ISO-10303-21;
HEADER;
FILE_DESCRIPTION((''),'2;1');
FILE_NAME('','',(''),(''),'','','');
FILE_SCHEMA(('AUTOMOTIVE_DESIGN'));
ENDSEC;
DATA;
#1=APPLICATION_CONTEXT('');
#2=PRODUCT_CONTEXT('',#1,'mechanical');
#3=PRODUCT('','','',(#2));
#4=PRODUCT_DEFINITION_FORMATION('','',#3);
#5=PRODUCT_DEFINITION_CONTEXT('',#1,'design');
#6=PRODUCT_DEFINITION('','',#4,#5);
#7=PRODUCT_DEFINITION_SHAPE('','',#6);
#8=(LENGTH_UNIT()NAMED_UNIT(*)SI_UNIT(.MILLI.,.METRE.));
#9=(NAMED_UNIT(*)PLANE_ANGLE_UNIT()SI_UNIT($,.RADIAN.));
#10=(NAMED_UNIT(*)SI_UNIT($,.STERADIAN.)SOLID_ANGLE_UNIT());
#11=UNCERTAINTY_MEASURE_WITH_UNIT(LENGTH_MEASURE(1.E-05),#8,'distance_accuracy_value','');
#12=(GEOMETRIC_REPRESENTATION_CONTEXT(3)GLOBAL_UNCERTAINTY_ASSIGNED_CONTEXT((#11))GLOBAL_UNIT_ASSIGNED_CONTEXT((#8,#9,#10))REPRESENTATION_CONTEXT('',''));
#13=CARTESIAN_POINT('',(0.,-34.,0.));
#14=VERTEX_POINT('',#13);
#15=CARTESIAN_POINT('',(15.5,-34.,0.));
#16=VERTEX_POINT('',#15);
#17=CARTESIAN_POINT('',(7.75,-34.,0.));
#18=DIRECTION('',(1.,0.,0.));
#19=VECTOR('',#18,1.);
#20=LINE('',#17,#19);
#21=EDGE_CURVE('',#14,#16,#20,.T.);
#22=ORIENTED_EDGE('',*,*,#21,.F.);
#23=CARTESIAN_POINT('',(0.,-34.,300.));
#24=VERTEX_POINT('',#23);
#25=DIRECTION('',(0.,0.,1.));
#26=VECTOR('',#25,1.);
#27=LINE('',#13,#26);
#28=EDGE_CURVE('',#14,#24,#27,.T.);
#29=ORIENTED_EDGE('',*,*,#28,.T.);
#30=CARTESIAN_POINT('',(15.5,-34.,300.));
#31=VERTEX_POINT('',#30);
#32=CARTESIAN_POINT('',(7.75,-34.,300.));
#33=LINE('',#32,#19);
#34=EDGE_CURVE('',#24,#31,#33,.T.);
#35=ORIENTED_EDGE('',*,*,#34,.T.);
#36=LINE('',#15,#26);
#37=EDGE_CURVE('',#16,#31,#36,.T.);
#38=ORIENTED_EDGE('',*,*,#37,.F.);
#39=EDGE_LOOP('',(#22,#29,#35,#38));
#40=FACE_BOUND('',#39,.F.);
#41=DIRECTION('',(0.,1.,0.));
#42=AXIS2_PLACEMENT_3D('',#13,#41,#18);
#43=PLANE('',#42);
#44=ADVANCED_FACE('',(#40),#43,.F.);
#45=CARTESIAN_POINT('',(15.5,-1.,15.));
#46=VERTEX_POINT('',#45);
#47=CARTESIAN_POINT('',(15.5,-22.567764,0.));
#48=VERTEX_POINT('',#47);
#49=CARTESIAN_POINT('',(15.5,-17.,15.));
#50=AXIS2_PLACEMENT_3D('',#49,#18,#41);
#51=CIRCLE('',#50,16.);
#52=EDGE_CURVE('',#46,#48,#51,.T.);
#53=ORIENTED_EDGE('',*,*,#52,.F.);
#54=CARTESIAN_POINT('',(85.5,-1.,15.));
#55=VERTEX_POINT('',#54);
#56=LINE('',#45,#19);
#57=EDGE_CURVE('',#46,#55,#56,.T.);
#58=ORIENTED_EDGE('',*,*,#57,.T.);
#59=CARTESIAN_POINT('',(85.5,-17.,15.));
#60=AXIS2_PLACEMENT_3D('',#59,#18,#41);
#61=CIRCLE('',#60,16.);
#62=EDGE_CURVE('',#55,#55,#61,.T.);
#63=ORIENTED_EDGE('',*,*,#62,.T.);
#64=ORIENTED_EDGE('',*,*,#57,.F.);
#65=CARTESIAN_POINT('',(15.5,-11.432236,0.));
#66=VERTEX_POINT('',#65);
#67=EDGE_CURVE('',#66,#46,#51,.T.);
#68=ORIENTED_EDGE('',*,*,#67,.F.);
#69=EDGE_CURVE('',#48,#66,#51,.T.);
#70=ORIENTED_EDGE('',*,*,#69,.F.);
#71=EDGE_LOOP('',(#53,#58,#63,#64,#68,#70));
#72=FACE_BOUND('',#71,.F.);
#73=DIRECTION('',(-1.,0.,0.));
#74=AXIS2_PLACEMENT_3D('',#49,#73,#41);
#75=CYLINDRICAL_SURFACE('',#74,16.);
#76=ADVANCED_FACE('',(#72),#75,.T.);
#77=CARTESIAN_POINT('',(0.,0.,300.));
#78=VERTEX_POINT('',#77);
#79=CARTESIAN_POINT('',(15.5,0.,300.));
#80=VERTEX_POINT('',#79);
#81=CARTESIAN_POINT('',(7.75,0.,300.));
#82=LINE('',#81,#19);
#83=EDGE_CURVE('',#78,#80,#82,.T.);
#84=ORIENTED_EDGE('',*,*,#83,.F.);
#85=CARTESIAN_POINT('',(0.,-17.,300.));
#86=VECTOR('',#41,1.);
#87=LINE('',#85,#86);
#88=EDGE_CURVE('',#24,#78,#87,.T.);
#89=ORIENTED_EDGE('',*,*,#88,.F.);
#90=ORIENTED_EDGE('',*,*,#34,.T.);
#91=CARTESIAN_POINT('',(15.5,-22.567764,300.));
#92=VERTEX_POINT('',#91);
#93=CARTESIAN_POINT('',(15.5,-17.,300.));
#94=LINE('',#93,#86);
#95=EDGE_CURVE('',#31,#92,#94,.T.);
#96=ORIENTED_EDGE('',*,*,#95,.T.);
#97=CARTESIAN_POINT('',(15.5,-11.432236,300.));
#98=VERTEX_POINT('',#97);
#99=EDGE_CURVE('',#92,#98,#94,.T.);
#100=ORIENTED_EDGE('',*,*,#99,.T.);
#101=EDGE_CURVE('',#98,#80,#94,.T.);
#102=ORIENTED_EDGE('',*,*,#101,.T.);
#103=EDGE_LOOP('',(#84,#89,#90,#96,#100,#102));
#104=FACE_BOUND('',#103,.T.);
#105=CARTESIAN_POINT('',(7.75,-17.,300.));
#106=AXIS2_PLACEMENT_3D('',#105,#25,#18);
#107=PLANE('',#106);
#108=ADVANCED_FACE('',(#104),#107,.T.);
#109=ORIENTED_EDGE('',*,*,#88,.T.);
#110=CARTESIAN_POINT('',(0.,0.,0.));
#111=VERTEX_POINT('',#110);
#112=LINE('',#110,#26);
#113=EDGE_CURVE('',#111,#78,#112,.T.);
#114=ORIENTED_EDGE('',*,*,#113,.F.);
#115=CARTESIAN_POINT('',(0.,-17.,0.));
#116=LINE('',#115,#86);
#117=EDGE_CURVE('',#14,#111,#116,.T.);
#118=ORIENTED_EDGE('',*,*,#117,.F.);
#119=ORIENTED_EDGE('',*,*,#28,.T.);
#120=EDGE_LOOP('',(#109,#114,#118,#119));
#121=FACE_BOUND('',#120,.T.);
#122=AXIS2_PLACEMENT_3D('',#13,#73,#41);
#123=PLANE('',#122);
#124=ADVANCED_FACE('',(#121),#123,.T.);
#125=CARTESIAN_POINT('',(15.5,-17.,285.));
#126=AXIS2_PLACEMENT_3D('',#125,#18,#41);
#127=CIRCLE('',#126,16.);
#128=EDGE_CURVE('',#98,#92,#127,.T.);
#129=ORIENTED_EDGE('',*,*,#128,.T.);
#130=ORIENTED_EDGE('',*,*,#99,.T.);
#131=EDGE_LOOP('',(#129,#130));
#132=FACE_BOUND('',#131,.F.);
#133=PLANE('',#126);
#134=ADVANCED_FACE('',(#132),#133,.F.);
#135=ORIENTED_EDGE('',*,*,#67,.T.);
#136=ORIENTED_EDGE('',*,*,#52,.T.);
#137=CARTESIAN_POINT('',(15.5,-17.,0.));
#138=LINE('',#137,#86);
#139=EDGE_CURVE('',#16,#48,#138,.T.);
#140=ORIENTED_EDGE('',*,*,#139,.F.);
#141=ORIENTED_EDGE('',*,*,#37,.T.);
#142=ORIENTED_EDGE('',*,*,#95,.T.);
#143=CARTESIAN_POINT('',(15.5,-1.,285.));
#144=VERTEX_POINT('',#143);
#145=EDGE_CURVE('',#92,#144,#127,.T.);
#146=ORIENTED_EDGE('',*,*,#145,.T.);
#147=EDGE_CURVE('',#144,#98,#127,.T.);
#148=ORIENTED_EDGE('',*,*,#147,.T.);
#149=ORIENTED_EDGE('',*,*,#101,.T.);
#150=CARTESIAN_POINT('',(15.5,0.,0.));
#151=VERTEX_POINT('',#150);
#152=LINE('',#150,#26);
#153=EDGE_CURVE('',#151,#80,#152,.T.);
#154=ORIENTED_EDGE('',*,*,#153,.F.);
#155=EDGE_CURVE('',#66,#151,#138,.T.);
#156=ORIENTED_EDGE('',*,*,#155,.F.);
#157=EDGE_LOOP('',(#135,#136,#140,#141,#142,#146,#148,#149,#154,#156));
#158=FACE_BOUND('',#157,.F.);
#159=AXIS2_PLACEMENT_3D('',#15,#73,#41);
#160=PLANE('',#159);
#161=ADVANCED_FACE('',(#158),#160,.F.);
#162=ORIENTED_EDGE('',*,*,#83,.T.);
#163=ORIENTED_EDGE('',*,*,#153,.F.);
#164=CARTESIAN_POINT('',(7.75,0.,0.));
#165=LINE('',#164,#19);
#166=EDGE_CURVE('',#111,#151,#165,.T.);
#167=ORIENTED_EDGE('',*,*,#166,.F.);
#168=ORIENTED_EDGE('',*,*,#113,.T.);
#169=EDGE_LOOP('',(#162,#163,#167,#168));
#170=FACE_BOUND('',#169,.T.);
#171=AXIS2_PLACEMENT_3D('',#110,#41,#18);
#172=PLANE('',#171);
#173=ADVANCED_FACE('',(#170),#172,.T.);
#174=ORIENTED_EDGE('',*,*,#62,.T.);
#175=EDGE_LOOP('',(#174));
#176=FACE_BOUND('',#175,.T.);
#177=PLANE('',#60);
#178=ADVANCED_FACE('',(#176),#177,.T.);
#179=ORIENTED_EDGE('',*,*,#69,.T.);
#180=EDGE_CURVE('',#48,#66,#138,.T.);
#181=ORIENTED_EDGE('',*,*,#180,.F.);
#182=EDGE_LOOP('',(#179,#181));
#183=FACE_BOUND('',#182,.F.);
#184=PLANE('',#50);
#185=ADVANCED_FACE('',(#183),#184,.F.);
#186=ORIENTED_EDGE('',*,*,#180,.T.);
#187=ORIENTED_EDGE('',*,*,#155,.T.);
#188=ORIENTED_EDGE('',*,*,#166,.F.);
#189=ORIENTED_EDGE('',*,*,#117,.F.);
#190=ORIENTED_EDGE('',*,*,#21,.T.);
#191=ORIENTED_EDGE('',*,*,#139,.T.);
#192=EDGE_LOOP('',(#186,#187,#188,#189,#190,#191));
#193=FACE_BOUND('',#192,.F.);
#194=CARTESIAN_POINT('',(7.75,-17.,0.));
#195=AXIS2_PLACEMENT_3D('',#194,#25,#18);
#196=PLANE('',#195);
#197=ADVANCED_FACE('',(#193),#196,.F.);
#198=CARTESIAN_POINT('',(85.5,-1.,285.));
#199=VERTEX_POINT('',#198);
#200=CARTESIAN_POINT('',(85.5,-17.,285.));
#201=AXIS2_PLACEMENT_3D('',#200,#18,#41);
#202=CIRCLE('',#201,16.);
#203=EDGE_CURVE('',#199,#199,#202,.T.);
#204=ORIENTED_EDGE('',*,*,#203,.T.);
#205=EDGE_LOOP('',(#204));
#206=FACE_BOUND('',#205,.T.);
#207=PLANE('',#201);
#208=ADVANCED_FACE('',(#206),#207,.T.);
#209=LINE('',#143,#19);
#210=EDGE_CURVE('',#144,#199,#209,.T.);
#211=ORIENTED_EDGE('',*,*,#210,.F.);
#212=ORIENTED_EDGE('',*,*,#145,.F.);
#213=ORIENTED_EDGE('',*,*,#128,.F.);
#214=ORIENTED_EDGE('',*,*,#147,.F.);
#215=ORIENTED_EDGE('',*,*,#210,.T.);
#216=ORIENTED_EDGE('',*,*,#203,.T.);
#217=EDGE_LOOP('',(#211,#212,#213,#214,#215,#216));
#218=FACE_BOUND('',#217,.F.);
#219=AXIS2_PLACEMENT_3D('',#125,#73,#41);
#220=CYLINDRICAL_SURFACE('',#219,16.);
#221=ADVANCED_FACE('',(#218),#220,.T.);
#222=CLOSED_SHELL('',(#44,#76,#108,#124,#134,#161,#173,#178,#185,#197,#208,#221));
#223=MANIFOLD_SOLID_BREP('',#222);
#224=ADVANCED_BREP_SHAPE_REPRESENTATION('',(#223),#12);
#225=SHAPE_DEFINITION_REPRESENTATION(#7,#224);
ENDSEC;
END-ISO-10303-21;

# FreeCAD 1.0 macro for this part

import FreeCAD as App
import Part
import Sketcher

V = App.Vector

doc = App.newDocument("Part")
body = doc.addObject("PartDesign::Body", "Body")

sketch1 = body.newObject("Sketcher::SketchObject", "Sketch")
sketch1.AttachmentSupport = (doc.getObject("XY_Plane"), [""])
sketch1.MapMode = "FlatFace"
sketch1.addGeometry([
    Part.LineSegment(V(0, 0, 0), V(0, -34, 0)),
    Part.LineSegment(V(0, -34, 0), V(16, -34, 0)),
    Part.LineSegment(V(16, -34, 0), V(16, 0, 0)),
    Part.LineSegment(V(16, 0, 0), V(0, 0, 0)),
], False)
sketch1.addConstraint([
    Sketcher.Constraint("Coincident", 0, 2, 1, 1),
    Sketcher.Constraint("Coincident", 1, 2, 2, 1),
    Sketcher.Constraint("Coincident", 2, 2, 3, 1),
    Sketcher.Constraint("Coincident", 3, 2, 0, 1),
    Sketcher.Constraint("Vertical", 0),
    Sketcher.Constraint("Horizontal", 1),
    Sketcher.Constraint("Vertical", 2),
    Sketcher.Constraint("Horizontal", 3),
    Sketcher.Constraint("Coincident", 3, 2, -1, 1),
    Sketcher.Constraint("DistanceY", 0, 2, 0, 1, 34.0),
    Sketcher.Constraint("DistanceX", 1, 1, 1, 2, 15.5),
])
pad1 = body.newObject("PartDesign::Pad", "Pad")
pad1.Profile = sketch1
pad1.Length = 300

sketch2 = body.newObject("Sketcher::SketchObject", "Sketch001")
sketch2.AttachmentSupport = (doc.getObject("YZ_Plane"), [""])
sketch2.MapMode = "FlatFace"
sketch2.AttachmentOffset = App.Placement(V(0, 0, 15.5), App.Rotation())
sketch2.addGeometry([
    Part.Circle(V(-17, 285, 0), V(0, 0, 1), 16),
    Part.Circle(V(-17, 15, 0), V(0, 0, 1), 16),
], False)
sketch2.addConstraint([
    Sketcher.Constraint("Equal", 0, 1),
    Sketcher.Constraint("Vertical", 0, 3, 1, 3),
    Sketcher.Constraint("Diameter", 0, 32.0),
    Sketcher.Constraint("DistanceX", 0, 3, -1, 1, 17.0),
    Sketcher.Constraint("DistanceY", -1, 1, 0, 3, 285.0),
    Sketcher.Constraint("DistanceY", -1, 1, 1, 3, 15.0),
])
pad2 = body.newObject("PartDesign::Pad", "Pad001")
pad2.Profile = sketch2
pad2.Length = 70

doc.recompute()
